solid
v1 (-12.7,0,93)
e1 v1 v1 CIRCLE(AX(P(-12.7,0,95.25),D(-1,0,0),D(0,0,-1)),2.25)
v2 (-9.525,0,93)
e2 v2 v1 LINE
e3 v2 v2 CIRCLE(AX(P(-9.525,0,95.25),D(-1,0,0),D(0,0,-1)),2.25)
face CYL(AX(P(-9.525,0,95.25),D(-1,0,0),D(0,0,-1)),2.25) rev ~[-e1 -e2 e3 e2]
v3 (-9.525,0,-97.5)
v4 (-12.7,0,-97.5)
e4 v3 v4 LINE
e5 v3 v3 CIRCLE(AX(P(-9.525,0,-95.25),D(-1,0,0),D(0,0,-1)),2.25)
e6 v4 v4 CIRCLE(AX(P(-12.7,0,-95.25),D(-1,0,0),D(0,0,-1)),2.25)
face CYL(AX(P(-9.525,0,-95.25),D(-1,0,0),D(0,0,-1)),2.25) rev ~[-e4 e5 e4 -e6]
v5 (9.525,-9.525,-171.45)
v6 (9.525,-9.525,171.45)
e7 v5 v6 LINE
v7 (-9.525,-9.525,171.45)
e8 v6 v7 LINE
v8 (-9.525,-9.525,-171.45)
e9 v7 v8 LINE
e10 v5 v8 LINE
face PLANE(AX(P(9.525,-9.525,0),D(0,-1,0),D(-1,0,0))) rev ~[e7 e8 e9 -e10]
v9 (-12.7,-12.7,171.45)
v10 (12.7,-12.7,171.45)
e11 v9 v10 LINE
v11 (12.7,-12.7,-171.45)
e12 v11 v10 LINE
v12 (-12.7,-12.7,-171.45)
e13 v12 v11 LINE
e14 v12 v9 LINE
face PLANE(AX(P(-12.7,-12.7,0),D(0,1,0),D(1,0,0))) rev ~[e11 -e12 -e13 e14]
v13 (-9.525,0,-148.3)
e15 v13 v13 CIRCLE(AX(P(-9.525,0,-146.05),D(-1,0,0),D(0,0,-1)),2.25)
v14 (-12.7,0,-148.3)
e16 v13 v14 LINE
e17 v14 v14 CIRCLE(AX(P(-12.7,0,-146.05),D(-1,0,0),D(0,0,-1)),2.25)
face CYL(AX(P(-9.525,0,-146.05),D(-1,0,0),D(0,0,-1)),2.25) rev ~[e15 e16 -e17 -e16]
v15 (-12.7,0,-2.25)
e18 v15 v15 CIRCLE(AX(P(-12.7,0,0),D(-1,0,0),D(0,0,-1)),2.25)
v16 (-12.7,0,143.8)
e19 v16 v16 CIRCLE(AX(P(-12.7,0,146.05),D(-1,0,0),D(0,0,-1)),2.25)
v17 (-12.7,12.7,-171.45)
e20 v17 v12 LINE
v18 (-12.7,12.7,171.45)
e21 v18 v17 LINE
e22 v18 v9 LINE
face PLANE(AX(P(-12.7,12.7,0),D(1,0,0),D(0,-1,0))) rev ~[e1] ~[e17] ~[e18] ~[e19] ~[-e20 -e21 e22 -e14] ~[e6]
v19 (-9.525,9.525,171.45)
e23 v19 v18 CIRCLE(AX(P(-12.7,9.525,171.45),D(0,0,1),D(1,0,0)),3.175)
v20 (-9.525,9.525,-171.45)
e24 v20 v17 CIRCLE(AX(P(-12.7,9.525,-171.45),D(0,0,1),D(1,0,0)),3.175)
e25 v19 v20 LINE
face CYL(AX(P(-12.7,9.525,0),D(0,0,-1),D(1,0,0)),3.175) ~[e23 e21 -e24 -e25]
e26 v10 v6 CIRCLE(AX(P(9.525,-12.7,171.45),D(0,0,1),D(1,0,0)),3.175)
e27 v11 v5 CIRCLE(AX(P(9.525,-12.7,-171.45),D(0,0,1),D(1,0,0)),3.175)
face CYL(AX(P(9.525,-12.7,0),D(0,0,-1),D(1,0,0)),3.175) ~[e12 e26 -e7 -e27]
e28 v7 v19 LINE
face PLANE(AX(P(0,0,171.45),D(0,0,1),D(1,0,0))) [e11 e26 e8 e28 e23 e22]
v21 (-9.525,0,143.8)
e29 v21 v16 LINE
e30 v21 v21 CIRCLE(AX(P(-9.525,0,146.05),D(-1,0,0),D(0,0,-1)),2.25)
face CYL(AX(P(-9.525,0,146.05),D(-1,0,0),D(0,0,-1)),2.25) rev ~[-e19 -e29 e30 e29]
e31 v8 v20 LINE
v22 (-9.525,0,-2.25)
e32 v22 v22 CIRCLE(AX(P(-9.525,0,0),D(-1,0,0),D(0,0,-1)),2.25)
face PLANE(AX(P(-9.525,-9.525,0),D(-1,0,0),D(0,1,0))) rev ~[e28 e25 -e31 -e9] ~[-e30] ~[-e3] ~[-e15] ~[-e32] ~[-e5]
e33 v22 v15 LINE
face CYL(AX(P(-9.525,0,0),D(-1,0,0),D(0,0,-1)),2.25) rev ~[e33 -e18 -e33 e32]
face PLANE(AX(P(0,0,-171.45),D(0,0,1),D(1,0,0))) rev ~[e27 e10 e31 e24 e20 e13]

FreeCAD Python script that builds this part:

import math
import FreeCAD as App
import Part
import Sketcher
Q = App.Units.Quantity

doc = App.newDocument("Part")
body = doc.addObject("PartDesign::Body", "Body")

# Sketch on XY plane
sketch1 = body.newObject("Sketcher::SketchObject", "Sketch")
sketch1.AttachmentSupport = (doc.getObject("XY_Plane"), [""])
sketch1.MapMode = "FlatFace"
sketch1.addGeometry(Part.LineSegment(App.Vector(-12.7, 12.7, 0), App.Vector(-12.7, -12.7, 0)), False)
sketch1.addGeometry(Part.LineSegment(App.Vector(-12.7, -12.7, 0), App.Vector(12.7, -12.7, 0)), False)
sketch1.addGeometry(Part.ArcOfCircle(Part.Circle(App.Vector(9.525, -12.7, 0), App.Vector(0, 0, 1), 3.175), math.radians(0), math.radians(90)), False)
sketch1.addGeometry(Part.LineSegment(App.Vector(9.525, -9.525, 0), App.Vector(-9.525, -9.525, 0)), False)
sketch1.addGeometry(Part.LineSegment(App.Vector(-9.525, -9.525, 0), App.Vector(-9.525, 9.525, 0)), False)
sketch1.addGeometry(Part.ArcOfCircle(Part.Circle(App.Vector(-12.7, 9.525, 0), App.Vector(0, 0, 1), 3.175), math.radians(0), math.radians(90)), False)
sketch1.addConstraint(Sketcher.Constraint("Coincident", 0, 2, 1, 1))
sketch1.addConstraint(Sketcher.Constraint("Coincident", 1, 2, 2, 1))
sketch1.addConstraint(Sketcher.Constraint("Tangent", 2, 2, 3, 1))
sketch1.addConstraint(Sketcher.Constraint("Coincident", 3, 2, 4, 1))
sketch1.addConstraint(Sketcher.Constraint("Tangent", 4, 2, 5, 1))
sketch1.addConstraint(Sketcher.Constraint("Coincident", 5, 2, 0, 1))
sketch1.addConstraint(Sketcher.Constraint("Vertical", 0))
sketch1.addConstraint(Sketcher.Constraint("Horizontal", 1))
sketch1.addConstraint(Sketcher.Constraint("Horizontal", 3))
sketch1.addConstraint(Sketcher.Constraint("Vertical", 4))
sketch1.addConstraint(Sketcher.Constraint("Equal", 2, 5))
sketch1.addConstraint(Sketcher.Constraint("Symmetric", 2, 2, 4, 2, -1, 1))
sketch1.addConstraint(Sketcher.Constraint("Symmetric", 1, 2, 5, 2, -1, 1))
sketch1.addConstraint(Sketcher.Constraint("Equal", 1, 0))
sketch1.addConstraint(Sketcher.Constraint("DistanceX", 1, 1, 1, 2, Q("1 in")))
sketch1.addConstraint(Sketcher.Constraint("Radius", 2, Q("0.125 in")))
pad1 = body.newObject("PartDesign::Pad", "Pad")
pad1.Profile = sketch1
pad1.Length = Q("13.5 in")
pad1.Midplane = True

# Sketch on YZ plane
sketch2 = body.newObject("Sketcher::SketchObject", "Sketch001")
sketch2.AttachmentSupport = (doc.getObject("YZ_Plane"), [""])
sketch2.MapMode = "FlatFace"
sketch2.AttachmentOffset = App.Placement(App.Vector(0, 0, -0.375 * 25.4), App.Rotation())
sketch2.addGeometry(Part.Circle(App.Vector(0, 146.05, 0), App.Vector(0, 0, 1), 2.25), False)
sketch2.addGeometry(Part.Circle(App.Vector(0, 95.25, 0), App.Vector(0, 0, 1), 2.25), False)
sketch2.addGeometry(Part.Circle(App.Vector(0, 0, 0), App.Vector(0, 0, 1), 2.25), False)
sketch2.addGeometry(Part.Circle(App.Vector(0, -95.25, 0), App.Vector(0, 0, 1), 2.25), False)
sketch2.addGeometry(Part.Circle(App.Vector(0, -146.05, 0), App.Vector(0, 0, 1), 2.25), False)
sketch2.addConstraint(Sketcher.Constraint("Coincident", 2, 3, -1, 1))
sketch2.addConstraint(Sketcher.Constraint("Equal", 0, 1))
sketch2.addConstraint(Sketcher.Constraint("Equal", 1, 2))
sketch2.addConstraint(Sketcher.Constraint("Equal", 2, 3))
sketch2.addConstraint(Sketcher.Constraint("Equal", 3, 4))
sketch2.addConstraint(Sketcher.Constraint("Symmetric", 1, 3, 3, 3, -1, 1))
sketch2.addConstraint(Sketcher.Constraint("Symmetric", 0, 3, 4, 3, -1, 1))
sketch2.addConstraint(Sketcher.Constraint("PointOnObject", 0, 3, -2))
sketch2.addConstraint(Sketcher.Constraint("PointOnObject", 1, 3, -2))
sketch2.addConstraint(Sketcher.Constraint("DistanceY", 1, 3, 0, 3, Q("2 in")))
sketch2.addConstraint(Sketcher.Constraint("DistanceY", 3, 3, 1, 3, Q("7.5 in")))
sketch2.addConstraint(Sketcher.Constraint("Diameter", 0, Q("4.5 mm")))
doc.recompute()
hole = body.newObject("PartDesign::Hole", "Hole")
hole.Profile = sketch2
hole.ThreadType = "None"
hole.Diameter = 4.5
hole.DepthType = "Dimension"
hole.Depth = Q("0.49 in")
hole.DrillPoint = "Angled"
hole.DrillPointAngle = 118

doc.recompute()
